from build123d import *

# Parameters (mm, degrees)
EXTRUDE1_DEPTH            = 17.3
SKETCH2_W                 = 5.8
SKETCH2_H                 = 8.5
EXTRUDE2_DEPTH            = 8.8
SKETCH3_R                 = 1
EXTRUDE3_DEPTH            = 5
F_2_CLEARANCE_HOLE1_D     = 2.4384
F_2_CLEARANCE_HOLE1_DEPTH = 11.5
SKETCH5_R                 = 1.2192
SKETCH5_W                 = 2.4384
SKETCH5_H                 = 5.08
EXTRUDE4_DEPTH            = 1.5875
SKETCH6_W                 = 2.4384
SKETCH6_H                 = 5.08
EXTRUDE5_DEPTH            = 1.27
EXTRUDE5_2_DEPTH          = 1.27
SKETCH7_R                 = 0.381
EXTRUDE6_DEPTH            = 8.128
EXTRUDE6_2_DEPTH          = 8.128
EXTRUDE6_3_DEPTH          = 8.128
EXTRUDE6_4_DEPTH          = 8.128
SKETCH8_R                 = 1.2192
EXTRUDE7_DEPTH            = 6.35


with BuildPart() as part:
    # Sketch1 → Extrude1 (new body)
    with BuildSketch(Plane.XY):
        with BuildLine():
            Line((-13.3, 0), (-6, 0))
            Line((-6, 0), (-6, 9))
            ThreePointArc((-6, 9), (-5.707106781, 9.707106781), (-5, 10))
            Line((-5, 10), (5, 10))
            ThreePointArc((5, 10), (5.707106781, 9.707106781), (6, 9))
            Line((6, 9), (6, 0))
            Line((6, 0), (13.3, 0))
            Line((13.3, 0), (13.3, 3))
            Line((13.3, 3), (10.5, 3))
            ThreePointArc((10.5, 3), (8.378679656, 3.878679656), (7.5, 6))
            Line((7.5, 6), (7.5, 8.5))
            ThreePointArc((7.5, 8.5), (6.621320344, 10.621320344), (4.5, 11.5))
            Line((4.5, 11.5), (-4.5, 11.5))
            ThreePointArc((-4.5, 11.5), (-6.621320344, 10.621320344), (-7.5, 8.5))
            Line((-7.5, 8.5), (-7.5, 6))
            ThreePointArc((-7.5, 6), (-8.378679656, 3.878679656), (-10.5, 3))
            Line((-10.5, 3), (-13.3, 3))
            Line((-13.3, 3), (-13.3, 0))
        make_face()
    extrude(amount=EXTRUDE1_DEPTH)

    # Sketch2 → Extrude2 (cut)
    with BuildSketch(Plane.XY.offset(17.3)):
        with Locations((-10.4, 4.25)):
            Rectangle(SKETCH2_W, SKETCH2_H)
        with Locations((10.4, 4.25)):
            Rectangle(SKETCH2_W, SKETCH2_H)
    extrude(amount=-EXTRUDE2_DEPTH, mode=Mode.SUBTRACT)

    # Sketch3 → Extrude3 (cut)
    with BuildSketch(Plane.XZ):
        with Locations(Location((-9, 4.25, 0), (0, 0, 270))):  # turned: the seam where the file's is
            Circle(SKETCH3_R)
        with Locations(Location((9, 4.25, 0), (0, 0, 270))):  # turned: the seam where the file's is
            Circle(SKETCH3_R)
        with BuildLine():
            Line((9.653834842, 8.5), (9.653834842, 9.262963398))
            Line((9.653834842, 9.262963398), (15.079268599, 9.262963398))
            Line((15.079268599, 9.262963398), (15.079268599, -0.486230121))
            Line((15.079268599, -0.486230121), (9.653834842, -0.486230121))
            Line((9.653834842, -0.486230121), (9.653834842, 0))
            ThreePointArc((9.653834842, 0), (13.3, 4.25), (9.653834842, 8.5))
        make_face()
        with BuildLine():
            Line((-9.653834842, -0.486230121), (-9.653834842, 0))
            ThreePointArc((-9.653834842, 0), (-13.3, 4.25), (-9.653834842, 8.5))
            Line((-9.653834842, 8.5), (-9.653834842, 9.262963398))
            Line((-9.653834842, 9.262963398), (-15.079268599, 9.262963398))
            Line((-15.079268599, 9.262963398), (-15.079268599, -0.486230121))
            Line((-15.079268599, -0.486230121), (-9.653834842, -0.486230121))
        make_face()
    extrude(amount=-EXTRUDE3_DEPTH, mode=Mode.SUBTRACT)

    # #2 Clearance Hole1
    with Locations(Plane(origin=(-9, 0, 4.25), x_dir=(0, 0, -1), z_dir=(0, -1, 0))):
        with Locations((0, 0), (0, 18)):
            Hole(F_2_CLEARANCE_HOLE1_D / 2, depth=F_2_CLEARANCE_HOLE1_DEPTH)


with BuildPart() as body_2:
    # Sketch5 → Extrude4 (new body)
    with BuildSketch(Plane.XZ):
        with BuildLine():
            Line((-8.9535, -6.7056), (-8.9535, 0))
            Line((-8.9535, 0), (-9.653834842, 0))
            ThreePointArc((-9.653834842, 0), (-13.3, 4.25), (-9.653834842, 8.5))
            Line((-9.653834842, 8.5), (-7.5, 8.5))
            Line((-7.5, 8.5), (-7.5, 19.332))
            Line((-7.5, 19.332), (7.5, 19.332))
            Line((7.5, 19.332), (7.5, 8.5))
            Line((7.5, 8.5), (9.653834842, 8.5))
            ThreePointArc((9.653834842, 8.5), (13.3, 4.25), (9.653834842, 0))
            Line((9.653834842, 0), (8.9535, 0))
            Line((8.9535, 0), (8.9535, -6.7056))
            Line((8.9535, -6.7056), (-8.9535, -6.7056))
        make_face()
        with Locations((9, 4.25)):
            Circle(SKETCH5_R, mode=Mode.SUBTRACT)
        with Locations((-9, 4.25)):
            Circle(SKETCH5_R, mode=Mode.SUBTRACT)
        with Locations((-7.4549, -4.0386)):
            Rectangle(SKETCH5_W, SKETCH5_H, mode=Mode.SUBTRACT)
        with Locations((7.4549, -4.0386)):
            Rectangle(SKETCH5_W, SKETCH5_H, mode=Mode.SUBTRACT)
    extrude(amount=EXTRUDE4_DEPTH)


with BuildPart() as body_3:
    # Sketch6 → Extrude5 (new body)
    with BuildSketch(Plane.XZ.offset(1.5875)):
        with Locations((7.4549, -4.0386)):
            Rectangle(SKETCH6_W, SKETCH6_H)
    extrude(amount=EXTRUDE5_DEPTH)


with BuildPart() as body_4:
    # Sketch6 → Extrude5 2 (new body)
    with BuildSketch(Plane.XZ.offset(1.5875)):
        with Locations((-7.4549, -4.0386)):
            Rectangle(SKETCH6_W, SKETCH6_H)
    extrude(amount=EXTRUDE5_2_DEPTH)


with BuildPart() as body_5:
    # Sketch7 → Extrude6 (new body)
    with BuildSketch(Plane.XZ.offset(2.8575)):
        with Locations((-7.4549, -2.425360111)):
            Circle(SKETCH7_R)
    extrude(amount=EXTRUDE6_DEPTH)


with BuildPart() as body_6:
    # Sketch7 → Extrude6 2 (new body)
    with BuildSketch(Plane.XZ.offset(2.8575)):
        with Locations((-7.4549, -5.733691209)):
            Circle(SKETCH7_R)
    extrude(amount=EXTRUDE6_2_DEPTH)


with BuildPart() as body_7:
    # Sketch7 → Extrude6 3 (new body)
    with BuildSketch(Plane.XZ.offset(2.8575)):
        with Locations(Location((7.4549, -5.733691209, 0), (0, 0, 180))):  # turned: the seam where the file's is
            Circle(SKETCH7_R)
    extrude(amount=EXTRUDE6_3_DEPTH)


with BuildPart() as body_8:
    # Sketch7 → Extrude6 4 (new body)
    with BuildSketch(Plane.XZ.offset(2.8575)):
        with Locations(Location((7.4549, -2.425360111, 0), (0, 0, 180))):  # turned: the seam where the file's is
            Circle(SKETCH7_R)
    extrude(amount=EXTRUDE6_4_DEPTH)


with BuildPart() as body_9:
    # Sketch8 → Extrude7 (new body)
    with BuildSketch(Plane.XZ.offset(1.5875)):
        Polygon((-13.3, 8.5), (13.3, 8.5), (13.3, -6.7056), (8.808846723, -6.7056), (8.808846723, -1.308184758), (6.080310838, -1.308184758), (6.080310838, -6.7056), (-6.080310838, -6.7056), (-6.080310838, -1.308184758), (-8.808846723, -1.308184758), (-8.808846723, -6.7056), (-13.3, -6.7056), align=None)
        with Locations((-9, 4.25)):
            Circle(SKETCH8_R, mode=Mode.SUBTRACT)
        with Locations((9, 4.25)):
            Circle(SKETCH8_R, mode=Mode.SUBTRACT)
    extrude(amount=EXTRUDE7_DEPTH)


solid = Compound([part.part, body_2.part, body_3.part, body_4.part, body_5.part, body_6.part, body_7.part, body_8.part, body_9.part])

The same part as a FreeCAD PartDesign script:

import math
import FreeCAD as App
import Part
import Sketcher

V = App.Vector


def add_polygon(sketch, points):
    """Adds a closed chain of lines whose ends are joined by coincident constraints."""
    first, n = sketch.GeometryCount, len(points)
    for a, b in zip(points, points[1:] + points[:1]):
        sketch.addGeometry(Part.LineSegment(App.Vector(*a, 0), App.Vector(*b, 0)), False)
    for i in range(n):
        sketch.addConstraint(Sketcher.Constraint("Coincident", first + i, 2, first + (i + 1) % n, 1))

doc = App.newDocument("Part")
body = doc.addObject("PartDesign::Body", "Body")

sketch1 = doc.addObject("Sketcher::SketchObject", "Sketch")
body.addObject(sketch1)
sketch1.AttachmentSupport = (doc.XY_Plane, [""])
sketch1.MapMode = "FlatFace"
sketch1.addGeometry(Part.LineSegment(V(-13.3, 0, 0), V(-6, 0, 0)), False)
sketch1.addGeometry(Part.LineSegment(V(-6, 0, 0), V(-6, 9, 0)), False)
sketch1.addGeometry(Part.ArcOfCircle(Part.Circle(V(-5, 9, 0), V(0, 0, 1), 1), math.radians(90), math.radians(180)), False)
sketch1.addGeometry(Part.LineSegment(V(-5, 10, 0), V(5, 10, 0)), False)
sketch1.addGeometry(Part.ArcOfCircle(Part.Circle(V(5, 9, 0), V(0, 0, 1), 1), math.radians(0), math.radians(90)), False)
sketch1.addGeometry(Part.LineSegment(V(6, 9, 0), V(6, 0, 0)), False)
sketch1.addGeometry(Part.LineSegment(V(6, 0, 0), V(13.3, 0, 0)), False)
sketch1.addGeometry(Part.LineSegment(V(13.3, 0, 0), V(13.3, 3, 0)), False)
sketch1.addGeometry(Part.LineSegment(V(13.3, 3, 0), V(10.5, 3, 0)), False)
sketch1.addGeometry(Part.ArcOfCircle(Part.Circle(V(10.5, 6, 0), V(0, 0, 1), 3), math.radians(180), math.radians(270)), False)
sketch1.addGeometry(Part.LineSegment(V(7.5, 6, 0), V(7.5, 8.5, 0)), False)
sketch1.addGeometry(Part.ArcOfCircle(Part.Circle(V(4.5, 8.5, 0), V(0, 0, 1), 3), math.radians(0), math.radians(90)), False)
sketch1.addGeometry(Part.LineSegment(V(4.5, 11.5, 0), V(-4.5, 11.5, 0)), False)
sketch1.addGeometry(Part.ArcOfCircle(Part.Circle(V(-4.5, 8.5, 0), V(0, 0, 1), 3), math.radians(90), math.radians(180)), False)
sketch1.addGeometry(Part.LineSegment(V(-7.5, 8.5, 0), V(-7.5, 6, 0)), False)
sketch1.addGeometry(Part.ArcOfCircle(Part.Circle(V(-10.5, 6, 0), V(0, 0, 1), 3), math.radians(-90), math.radians(0)), False)
sketch1.addGeometry(Part.LineSegment(V(-10.5, 3, 0), V(-13.3, 3, 0)), False)
sketch1.addGeometry(Part.LineSegment(V(-13.3, 3, 0), V(-13.3, 0, 0)), False)
sketch1.addConstraint(Sketcher.Constraint("Coincident", 0, 2, 1, 1))
sketch1.addConstraint(Sketcher.Constraint("Tangent", 1, 2, 2, 2))
sketch1.addConstraint(Sketcher.Constraint("Tangent", 2, 1, 3, 1))
sketch1.addConstraint(Sketcher.Constraint("Tangent", 3, 2, 4, 2))
sketch1.addConstraint(Sketcher.Constraint("Tangent", 4, 1, 5, 1))
sketch1.addConstraint(Sketcher.Constraint("Coincident", 5, 2, 6, 1))
sketch1.addConstraint(Sketcher.Constraint("Coincident", 6, 2, 7, 1))
sketch1.addConstraint(Sketcher.Constraint("Coincident", 7, 2, 8, 1))
sketch1.addConstraint(Sketcher.Constraint("Tangent", 8, 2, 9, 2))
sketch1.addConstraint(Sketcher.Constraint("Tangent", 9, 1, 10, 1))
sketch1.addConstraint(Sketcher.Constraint("Tangent", 10, 2, 11, 1))
sketch1.addConstraint(Sketcher.Constraint("Tangent", 11, 2, 12, 1))
sketch1.addConstraint(Sketcher.Constraint("Tangent", 12, 2, 13, 1))
sketch1.addConstraint(Sketcher.Constraint("Tangent", 13, 2, 14, 1))
sketch1.addConstraint(Sketcher.Constraint("Tangent", 14, 2, 15, 2))
sketch1.addConstraint(Sketcher.Constraint("Tangent", 15, 1, 16, 1))
sketch1.addConstraint(Sketcher.Constraint("Coincident", 16, 2, 17, 1))
sketch1.addConstraint(Sketcher.Constraint("Coincident", 17, 2, 0, 1))
sketch1.addConstraint(Sketcher.Constraint("Horizontal", 0))
sketch1.addConstraint(Sketcher.Constraint("Vertical", 1))
sketch1.addConstraint(Sketcher.Constraint("Horizontal", 3))
sketch1.addConstraint(Sketcher.Constraint("Vertical", 5))
sketch1.addConstraint(Sketcher.Constraint("Horizontal", 6))
sketch1.addConstraint(Sketcher.Constraint("Vertical", 7))
sketch1.addConstraint(Sketcher.Constraint("Horizontal", 8))
sketch1.addConstraint(Sketcher.Constraint("Vertical", 10))
sketch1.addConstraint(Sketcher.Constraint("Horizontal", 12))
sketch1.addConstraint(Sketcher.Constraint("Vertical", 14))
sketch1.addConstraint(Sketcher.Constraint("Horizontal", 16))
sketch1.addConstraint(Sketcher.Constraint("Vertical", 17))
sketch1.addConstraint(Sketcher.Constraint("Equal", 2, 4))
sketch1.addConstraint(Sketcher.Constraint("Equal", 9, 11))
sketch1.addConstraint(Sketcher.Constraint("Equal", 11, 13))
sketch1.addConstraint(Sketcher.Constraint("Equal", 13, 15))
sketch1.addConstraint(Sketcher.Constraint("Symmetric", 0, 2, 5, 2, -1, 1))
sketch1.addConstraint(Sketcher.Constraint("Symmetric", 9, 3, 15, 3, -2))
sketch1.addConstraint(Sketcher.Constraint("Symmetric", 6, 2, 17, 2, -2))
sketch1.addConstraint(Sketcher.Constraint("Equal", 12, 1))
sketch1.addConstraint(Sketcher.Constraint("Radius", 2, 1.0))
sketch1.addConstraint(Sketcher.Constraint("Radius", 9, 3.0))
sketch1.addConstraint(Sketcher.Constraint("DistanceX", 3, 1, 3, 2, 10.0))
sketch1.addConstraint(Sketcher.Constraint("DistanceX", 12, 2, 12, 1, 9.0))
sketch1.addConstraint(Sketcher.Constraint("DistanceY", 7, 1, 7, 2, 3.0))
sketch1.addConstraint(Sketcher.Constraint("DistanceX", 0, 1, 0, 2, 7.3))
sketch1.addConstraint(Sketcher.Constraint("DistanceY", 10, 1, 10, 2, 2.5))
pad1 = doc.addObject("PartDesign::Pad", "Pad")
body.addObject(pad1)
pad1.Profile = sketch1
pad1.Length = 17.3

sketch2 = doc.addObject("Sketcher::SketchObject", "Sketch001")
body.addObject(sketch2)
sketch2.AttachmentSupport = (doc.XY_Plane, [""])
sketch2.MapMode = "FlatFace"
sketch2.AttachmentOffset = App.Placement(V(0, 0, 17.3), App.Rotation())
add_polygon(sketch2, [(-13.3, 8.5), (-13.3, 0), (-7.5, 0), (-7.5, 8.5)])
add_polygon(sketch2, [(7.5, 8.5), (7.5, 0), (13.3, 0), (13.3, 8.5)])
sketch2.addConstraint(Sketcher.Constraint("Vertical", 0))
sketch2.addConstraint(Sketcher.Constraint("Horizontal", 1))
sketch2.addConstraint(Sketcher.Constraint("Vertical", 2))
sketch2.addConstraint(Sketcher.Constraint("Horizontal", 3))
sketch2.addConstraint(Sketcher.Constraint("Vertical", 4))
sketch2.addConstraint(Sketcher.Constraint("Horizontal", 5))
sketch2.addConstraint(Sketcher.Constraint("Vertical", 6))
sketch2.addConstraint(Sketcher.Constraint("Horizontal", 7))
sketch2.addConstraint(Sketcher.Constraint("Symmetric", 1, 2, 4, 2, -1, 1))
sketch2.addConstraint(Sketcher.Constraint("Symmetric", 0, 2, 5, 2, -2))
sketch2.addConstraint(Sketcher.Constraint("Horizontal", 3, 2, 6, 2))
sketch2.addConstraint(Sketcher.Constraint("DistanceX", 1, 1, 1, 2, 5.8))
sketch2.addConstraint(Sketcher.Constraint("DistanceY", 0, 2, 0, 1, 8.5))
sketch2.addConstraint(Sketcher.Constraint("DistanceX", 1, 2, 4, 2, 15.0))
pocket1 = doc.addObject("PartDesign::Pocket", "Pocket")
body.addObject(pocket1)
pocket1.Profile = sketch2
pocket1.Length = 8.8

sketch3 = doc.addObject("Sketcher::SketchObject", "Sketch002")
body.addObject(sketch3)
sketch3.AttachmentSupport = (doc.XZ_Plane, [""])
sketch3.MapMode = "FlatFace"
sketch3.addGeometry(Part.Circle(V(-9, 4.25, 0), V(0, 0, 1), 1), False)
sketch3.addGeometry(Part.Circle(V(9, 4.25, 0), V(0, 0, 1), 1), False)
sketch3.addGeometry(Part.LineSegment(V(9.653835, 9.262963, 0), V(9.653835, 8.5, 0)), False)
sketch3.addGeometry(Part.ArcOfCircle(Part.Circle(V(9, 4.25, 0), V(0, 0, 1), 4.3), math.radians(-81.253987), math.radians(81.253987)), False)
sketch3.addGeometry(Part.LineSegment(V(9.653835, 0, 0), V(9.653835, -0.48623, 0)), False)
sketch3.addGeometry(Part.LineSegment(V(9.653835, -0.48623, 0), V(15.079269, -0.48623, 0)), False)
sketch3.addGeometry(Part.LineSegment(V(15.079269, -0.48623, 0), V(15.079269, 9.262963, 0)), False)
sketch3.addGeometry(Part.LineSegment(V(15.079269, 9.262963, 0), V(9.653835, 9.262963, 0)), False)
sketch3.addGeometry(Part.LineSegment(V(-9.653835, -0.48623, 0), V(-9.653835, 0, 0)), False)
sketch3.addGeometry(Part.ArcOfCircle(Part.Circle(V(-9, 4.25, 0), V(0, 0, 1), 4.3), math.radians(98.746013), math.radians(261.253987)), False)
sketch3.addGeometry(Part.LineSegment(V(-9.653835, 8.5, 0), V(-9.653835, 9.262963, 0)), False)
sketch3.addGeometry(Part.LineSegment(V(-9.653835, 9.262963, 0), V(-15.079269, 9.262963, 0)), False)
sketch3.addGeometry(Part.LineSegment(V(-15.079269, 9.262963, 0), V(-15.079269, -0.48623, 0)), False)
sketch3.addGeometry(Part.LineSegment(V(-15.079269, -0.48623, 0), V(-9.653835, -0.48623, 0)), False)
sketch3.addConstraint(Sketcher.Constraint("Coincident", 2, 2, 3, 2))
sketch3.addConstraint(Sketcher.Constraint("Coincident", 3, 1, 4, 1))
sketch3.addConstraint(Sketcher.Constraint("Coincident", 4, 2, 5, 1))
sketch3.addConstraint(Sketcher.Constraint("Coincident", 5, 2, 6, 1))
sketch3.addConstraint(Sketcher.Constraint("Coincident", 6, 2, 7, 1))
sketch3.addConstraint(Sketcher.Constraint("Coincident", 7, 2, 2, 1))
sketch3.addConstraint(Sketcher.Constraint("Coincident", 8, 2, 9, 2))
sketch3.addConstraint(Sketcher.Constraint("Coincident", 9, 1, 10, 1))
sketch3.addConstraint(Sketcher.Constraint("Coincident", 10, 2, 11, 1))
sketch3.addConstraint(Sketcher.Constraint("Coincident", 11, 2, 12, 1))
sketch3.addConstraint(Sketcher.Constraint("Coincident", 12, 2, 13, 1))
sketch3.addConstraint(Sketcher.Constraint("Coincident", 13, 2, 8, 1))
sketch3.addConstraint(Sketcher.Constraint("Vertical", 2))
sketch3.addConstraint(Sketcher.Constraint("Vertical", 4))
sketch3.addConstraint(Sketcher.Constraint("Horizontal", 5))
sketch3.addConstraint(Sketcher.Constraint("Vertical", 6))
sketch3.addConstraint(Sketcher.Constraint("Horizontal", 7))
sketch3.addConstraint(Sketcher.Constraint("Vertical", 8))
sketch3.addConstraint(Sketcher.Constraint("Vertical", 10))
sketch3.addConstraint(Sketcher.Constraint("Horizontal", 11))
sketch3.addConstraint(Sketcher.Constraint("Vertical", 12))
sketch3.addConstraint(Sketcher.Constraint("Horizontal", 13))
sketch3.addConstraint(Sketcher.Constraint("Coincident", 3, 3, 1, 3))
sketch3.addConstraint(Sketcher.Constraint("Coincident", 9, 3, 0, 3))
sketch3.addConstraint(Sketcher.Constraint("Equal", 0, 1))
sketch3.addConstraint(Sketcher.Constraint("Equal", 3, 9))
sketch3.addConstraint(Sketcher.Constraint("Symmetric", 3, 1, 8, 2, -1, 1))
sketch3.addConstraint(Sketcher.Constraint("Symmetric", 0, 3, 1, 3, -2))
sketch3.addConstraint(Sketcher.Constraint("Symmetric", 7, 2, 10, 2, -2))
sketch3.addConstraint(Sketcher.Constraint("Symmetric", 5, 2, 12, 2, -2))
sketch3.addConstraint(Sketcher.Constraint("Vertical", 2, 2, 3, 1))
sketch3.addConstraint(Sketcher.Constraint("Diameter", 0, 2.0))
sketch3.addConstraint(Sketcher.Constraint("Radius", 3, 4.3))
sketch3.addConstraint(Sketcher.Constraint("DistanceX", 0, 3, -1, 1, 9.0))
sketch3.addConstraint(Sketcher.Constraint("DistanceY", -1, 1, 2, 2, 8.5))
sketch3.addConstraint(Sketcher.Constraint("DistanceY", 4, 2, 4, 1, 0.48623))
sketch3.addConstraint(Sketcher.Constraint("DistanceX", 5, 1, 5, 2, 5.425434))
sketch3.addConstraint(Sketcher.Constraint("DistanceY", 2, 2, 2, 1, 0.762963))
pocket2 = doc.addObject("PartDesign::Pocket", "Pocket001")
body.addObject(pocket2)
pocket2.Profile = sketch3
pocket2.Length = 5

sketch4 = doc.addObject("Sketcher::SketchObject", "Sketch003")
body.addObject(sketch4)
sketch4.AttachmentSupport = (doc.XZ_Plane, [""])
sketch4.MapMode = "FlatFace"
sketch4.addGeometry(Part.Circle(V(-9, 4.25, 0), V(0, 0, 1), 1.2192), False)
sketch4.addGeometry(Part.Circle(V(9, 4.25, 0), V(0, 0, 1), 1.2192), False)
sketch4.addConstraint(Sketcher.Constraint("Equal", 0, 1))
sketch4.addConstraint(Sketcher.Constraint("Symmetric", 0, 3, 1, 3, -2))
sketch4.addConstraint(Sketcher.Constraint("DistanceX", 0, 3, -1, 1, 9.0))
sketch4.addConstraint(Sketcher.Constraint("Diameter", 0, 2.4384))
sketch4.addConstraint(Sketcher.Constraint("DistanceY", -1, 1, 0, 3, 4.25))
doc.recompute()
hole = doc.addObject("PartDesign::Hole", "Hole")
body.addObject(hole)
hole.Profile = sketch4
hole.ThreadType = "None"
hole.Diameter = 2.4384
hole.DepthType = "Dimension"
hole.Depth = 11.5
hole.DrillPoint = "Flat"
body2 = doc.addObject("PartDesign::Body", "Body001")

sketch5 = doc.addObject("Sketcher::SketchObject", "Sketch004")
body2.addObject(sketch5)
sketch5.AttachmentSupport = (doc.getObject("XZ_Plane001"), [""])
sketch5.MapMode = "FlatFace"
sketch5.addGeometry(Part.LineSegment(V(-8.9535, 0, 0), V(-8.9535, -6.7056, 0)), False)
sketch5.addGeometry(Part.LineSegment(V(-8.9535, -6.7056, 0), V(8.9535, -6.7056, 0)), False)
sketch5.addGeometry(Part.LineSegment(V(8.9535, -6.7056, 0), V(8.9535, 0, 0)), False)
sketch5.addGeometry(Part.LineSegment(V(8.9535, 0, 0), V(9.653835, 0, 0)), False)
sketch5.addGeometry(Part.ArcOfCircle(Part.Circle(V(9, 4.25, 0), V(0, 0, 1), 4.3), math.radians(-81.253987), math.radians(81.253987)), False)
sketch5.addGeometry(Part.LineSegment(V(9.653835, 8.5, 0), V(7.5, 8.5, 0)), False)
sketch5.addGeometry(Part.LineSegment(V(7.5, 8.5, 0), V(7.5, 19.332, 0)), False)
sketch5.addGeometry(Part.LineSegment(V(7.5, 19.332, 0), V(-7.5, 19.332, 0)), False)
sketch5.addGeometry(Part.LineSegment(V(-7.5, 19.332, 0), V(-7.5, 8.5, 0)), False)
sketch5.addGeometry(Part.LineSegment(V(-7.5, 8.5, 0), V(-9.653835, 8.5, 0)), False)
sketch5.addGeometry(Part.ArcOfCircle(Part.Circle(V(-9, 4.25, 0), V(0, 0, 1), 4.3), math.radians(98.746013), math.radians(261.253987)), False)
sketch5.addGeometry(Part.LineSegment(V(-9.653835, 0, 0), V(-8.9535, 0, 0)), False)
add_polygon(sketch5, [(6.2357, -6.5786), (6.2357, -1.4986), (8.6741, -1.4986), (8.6741, -6.5786)])
add_polygon(sketch5, [(-8.6741, -6.5786), (-8.6741, -1.4986), (-6.2357, -1.4986), (-6.2357, -6.5786)])
sketch5.addGeometry(Part.Circle(V(9, 4.25, 0), V(0, 0, 1), 1.2192), False)
sketch5.addGeometry(Part.Circle(V(-9, 4.25, 0), V(0, 0, 1), 1.2192), False)
sketch5.addConstraint(Sketcher.Constraint("Coincident", 0, 2, 1, 1))
sketch5.addConstraint(Sketcher.Constraint("Coincident", 1, 2, 2, 1))
sketch5.addConstraint(Sketcher.Constraint("Coincident", 2, 2, 3, 1))
sketch5.addConstraint(Sketcher.Constraint("Coincident", 3, 2, 4, 1))
sketch5.addConstraint(Sketcher.Constraint("Coincident", 4, 2, 5, 1))
sketch5.addConstraint(Sketcher.Constraint("Coincident", 5, 2, 6, 1))
sketch5.addConstraint(Sketcher.Constraint("Coincident", 6, 2, 7, 1))
sketch5.addConstraint(Sketcher.Constraint("Coincident", 7, 2, 8, 1))
sketch5.addConstraint(Sketcher.Constraint("Coincident", 8, 2, 9, 1))
sketch5.addConstraint(Sketcher.Constraint("Coincident", 9, 2, 10, 1))
sketch5.addConstraint(Sketcher.Constraint("Coincident", 10, 2, 11, 1))
sketch5.addConstraint(Sketcher.Constraint("Coincident", 11, 2, 0, 1))
sketch5.addConstraint(Sketcher.Constraint("Vertical", 0))
sketch5.addConstraint(Sketcher.Constraint("Horizontal", 1))
sketch5.addConstraint(Sketcher.Constraint("Vertical", 2))
sketch5.addConstraint(Sketcher.Constraint("Horizontal", 3))
sketch5.addConstraint(Sketcher.Constraint("Horizontal", 5))
sketch5.addConstraint(Sketcher.Constraint("Vertical", 6))
sketch5.addConstraint(Sketcher.Constraint("Horizontal", 7))
sketch5.addConstraint(Sketcher.Constraint("Vertical", 8))
sketch5.addConstraint(Sketcher.Constraint("Horizontal", 9))
sketch5.addConstraint(Sketcher.Constraint("Horizontal", 11))
sketch5.addConstraint(Sketcher.Constraint("Vertical", 12))
sketch5.addConstraint(Sketcher.Constraint("Horizontal", 13))
sketch5.addConstraint(Sketcher.Constraint("Vertical", 14))
sketch5.addConstraint(Sketcher.Constraint("Horizontal", 15))
sketch5.addConstraint(Sketcher.Constraint("Vertical", 16))
sketch5.addConstraint(Sketcher.Constraint("Horizontal", 17))
sketch5.addConstraint(Sketcher.Constraint("Vertical", 18))
sketch5.addConstraint(Sketcher.Constraint("Horizontal", 19))
sketch5.addConstraint(Sketcher.Constraint("Coincident", 20, 3, 4, 3))
sketch5.addConstraint(Sketcher.Constraint("Coincident", 21, 3, 10, 3))
sketch5.addConstraint(Sketcher.Constraint("Equal", 4, 10))
sketch5.addConstraint(Sketcher.Constraint("Equal", 20, 21))
sketch5.addConstraint(Sketcher.Constraint("Symmetric", 3, 2, 10, 2, -1, 1))
sketch5.addConstraint(Sketcher.Constraint("Symmetric", 4, 3, 10, 3, -2))
sketch5.addConstraint(Sketcher.Constraint("Symmetric", 5, 2, 8, 2, -2))
sketch5.addConstraint(Sketcher.Constraint("Symmetric", 13, 2, 16, 2, -2))
sketch5.addConstraint(Sketcher.Constraint("Symmetric", 15, 2, 18, 2, -2))
sketch5.addConstraint(Sketcher.Constraint("Vertical", 3, 2, 4, 2))
sketch5.addConstraint(Sketcher.Constraint("Equal", 3, 11))
sketch5.addConstraint(Sketcher.Constraint("Radius", 4, 4.3))
sketch5.addConstraint(Sketcher.Constraint("DistanceX", 7, 2, 7, 1, 15.0))
sketch5.addConstraint(Sketcher.Constraint("DistanceX", -1, 1, 4, 3, 9.0))
sketch5.addConstraint(Sketcher.Constraint("Diameter", 20, 2.4384))
sketch5.addConstraint(Sketcher.Constraint("DistanceY", 12, 1, 12, 2, 5.08))
sketch5.addConstraint(Sketcher.Constraint("DistanceY", -1, 1, 4, 2, 8.5))
sketch5.addConstraint(Sketcher.Constraint("DistanceX", 1, 1, 1, 2, 17.907))
sketch5.addConstraint(Sketcher.Constraint("DistanceY", 6, 1, 6, 2, 10.832))
sketch5.addConstraint(Sketcher.Constraint("DistanceX", 13, 1, 13, 2, 2.4384))
sketch5.addConstraint(Sketcher.Constraint("DistanceY", 0, 2, 0, 1, 6.7056))
sketch5.addConstraint(Sketcher.Constraint("DistanceY", 1, 2, 12, 2, 5.207))
sketch5.addConstraint(Sketcher.Constraint("DistanceX", -1, 1, 12, 2, 6.2357))
pad2 = doc.addObject("PartDesign::Pad", "Pad001")
body2.addObject(pad2)
pad2.Profile = sketch5
pad2.Length = 1.5875
body3 = doc.addObject("PartDesign::Body", "Body002")

sketch6 = doc.addObject("Sketcher::SketchObject", "Sketch005")
body3.addObject(sketch6)
sketch6.AttachmentSupport = (doc.getObject("XZ_Plane002"), [""])
sketch6.MapMode = "FlatFace"
sketch6.AttachmentOffset = App.Placement(V(0, 0, 1.5875), App.Rotation())
add_polygon(sketch6, [(6.2357, -1.4986), (6.2357, -6.5786), (8.6741, -6.5786), (8.6741, -1.4986)])
sketch6.addConstraint(Sketcher.Constraint("Vertical", 0))
sketch6.addConstraint(Sketcher.Constraint("Horizontal", 1))
sketch6.addConstraint(Sketcher.Constraint("Vertical", 2))
sketch6.addConstraint(Sketcher.Constraint("Horizontal", 3))
sketch6.addConstraint(Sketcher.Constraint("DistanceY", 0, 2, 0, 1, 5.08))
sketch6.addConstraint(Sketcher.Constraint("DistanceX", 1, 1, 1, 2, 2.4384))
sketch6.addConstraint(Sketcher.Constraint("DistanceX", -1, 1, 0, 2, 6.2357))
sketch6.addConstraint(Sketcher.Constraint("DistanceY", 0, 2, -1, 1, 6.5786))
pad3 = doc.addObject("PartDesign::Pad", "Pad002")
body3.addObject(pad3)
pad3.Profile = sketch6
pad3.Length = 1.27
body4 = doc.addObject("PartDesign::Body", "Body003")

sketch7 = doc.addObject("Sketcher::SketchObject", "Sketch006")
body4.addObject(sketch7)
sketch7.AttachmentSupport = (doc.getObject("XZ_Plane003"), [""])
sketch7.MapMode = "FlatFace"
sketch7.AttachmentOffset = App.Placement(V(0, 0, 1.5875), App.Rotation())
add_polygon(sketch7, [(-8.6741, -1.4986), (-8.6741, -6.5786), (-6.2357, -6.5786), (-6.2357, -1.4986)])
sketch7.addConstraint(Sketcher.Constraint("Vertical", 0))
sketch7.addConstraint(Sketcher.Constraint("Horizontal", 1))
sketch7.addConstraint(Sketcher.Constraint("Vertical", 2))
sketch7.addConstraint(Sketcher.Constraint("Horizontal", 3))
sketch7.addConstraint(Sketcher.Constraint("DistanceY", 0, 2, 0, 1, 5.08))
sketch7.addConstraint(Sketcher.Constraint("DistanceX", 1, 1, 1, 2, 2.4384))
sketch7.addConstraint(Sketcher.Constraint("DistanceX", 0, 2, -1, 1, 8.6741))
sketch7.addConstraint(Sketcher.Constraint("DistanceY", 0, 2, -1, 1, 6.5786))
pad4 = doc.addObject("PartDesign::Pad", "Pad003")
body4.addObject(pad4)
pad4.Profile = sketch7
pad4.Length = 1.27
body5 = doc.addObject("PartDesign::Body", "Body004")

sketch8 = doc.addObject("Sketcher::SketchObject", "Sketch007")
body5.addObject(sketch8)
sketch8.AttachmentSupport = (doc.getObject("XZ_Plane004"), [""])
sketch8.MapMode = "FlatFace"
sketch8.AttachmentOffset = App.Placement(V(0, 0, 2.8575), App.Rotation())
sketch8.addGeometry(Part.Circle(V(-7.4549, -2.42536, 0), V(0, 0, 1), 0.381), False)
sketch8.addConstraint(Sketcher.Constraint("Diameter", 0, 0.762))
sketch8.addConstraint(Sketcher.Constraint("DistanceX", 0, 3, -1, 1, 7.4549))
sketch8.addConstraint(Sketcher.Constraint("DistanceY", 0, 3, -1, 1, 2.42536))
pad5 = doc.addObject("PartDesign::Pad", "Pad004")
body5.addObject(pad5)
pad5.Profile = sketch8
pad5.Length = 8.128
body6 = doc.addObject("PartDesign::Body", "Body005")

sketch9 = doc.addObject("Sketcher::SketchObject", "Sketch008")
body6.addObject(sketch9)
sketch9.AttachmentSupport = (doc.getObject("XZ_Plane005"), [""])
sketch9.MapMode = "FlatFace"
sketch9.AttachmentOffset = App.Placement(V(0, 0, 2.8575), App.Rotation())
sketch9.addGeometry(Part.Circle(V(-7.4549, -5.733691, 0), V(0, 0, 1), 0.381), False)
sketch9.addConstraint(Sketcher.Constraint("Diameter", 0, 0.762))
sketch9.addConstraint(Sketcher.Constraint("DistanceX", 0, 3, -1, 1, 7.4549))
sketch9.addConstraint(Sketcher.Constraint("DistanceY", 0, 3, -1, 1, 5.733691))
pad6 = doc.addObject("PartDesign::Pad", "Pad005")
body6.addObject(pad6)
pad6.Profile = sketch9
pad6.Length = 8.128
body7 = doc.addObject("PartDesign::Body", "Body006")

sketch10 = doc.addObject("Sketcher::SketchObject", "Sketch009")
body7.addObject(sketch10)
sketch10.AttachmentSupport = (doc.getObject("XZ_Plane006"), [""])
sketch10.MapMode = "FlatFace"
sketch10.AttachmentOffset = App.Placement(V(0, 0, 2.8575), App.Rotation())
sketch10.addGeometry(Part.Circle(V(7.4549, -5.733691, 0), V(0, 0, 1), 0.381), False)
sketch10.addConstraint(Sketcher.Constraint("Diameter", 0, 0.762))
sketch10.addConstraint(Sketcher.Constraint("DistanceX", -1, 1, 0, 3, 7.4549))
sketch10.addConstraint(Sketcher.Constraint("DistanceY", 0, 3, -1, 1, 5.733691))
pad7 = doc.addObject("PartDesign::Pad", "Pad006")
body7.addObject(pad7)
pad7.Profile = sketch10
pad7.Length = 8.128
body8 = doc.addObject("PartDesign::Body", "Body007")

sketch11 = doc.addObject("Sketcher::SketchObject", "Sketch010")
body8.addObject(sketch11)
sketch11.AttachmentSupport = (doc.getObject("XZ_Plane007"), [""])
sketch11.MapMode = "FlatFace"
sketch11.AttachmentOffset = App.Placement(V(0, 0, 2.8575), App.Rotation())
sketch11.addGeometry(Part.Circle(V(7.4549, -2.42536, 0), V(0, 0, 1), 0.381), False)
sketch11.addConstraint(Sketcher.Constraint("Diameter", 0, 0.762))
sketch11.addConstraint(Sketcher.Constraint("DistanceX", -1, 1, 0, 3, 7.4549))
sketch11.addConstraint(Sketcher.Constraint("DistanceY", 0, 3, -1, 1, 2.42536))
pad8 = doc.addObject("PartDesign::Pad", "Pad007")
body8.addObject(pad8)
pad8.Profile = sketch11
pad8.Length = 8.128
body9 = doc.addObject("PartDesign::Body", "Body008")

sketch12 = doc.addObject("Sketcher::SketchObject", "Sketch011")
body9.addObject(sketch12)
sketch12.AttachmentSupport = (doc.getObject("XZ_Plane008"), [""])
sketch12.MapMode = "FlatFace"
sketch12.AttachmentOffset = App.Placement(V(0, 0, 1.5875), App.Rotation())
add_polygon(sketch12, [(13.3, 8.5), (-13.3, 8.5), (-13.3, -6.7056), (-8.808847, -6.7056), (-8.808847, -1.308185), (-6.080311, -1.308185), (-6.080311, -6.7056), (6.080311, -6.7056), (6.080311, -1.308185), (8.808847, -1.308185), (8.808847, -6.7056), (13.3, -6.7056)])
sketch12.addGeometry(Part.Circle(V(9, 4.25, 0), V(0, 0, 1), 1.2192), False)
sketch12.addGeometry(Part.Circle(V(-9, 4.25, 0), V(0, 0, 1), 1.2192), False)
sketch12.addConstraint(Sketcher.Constraint("Horizontal", 0))
sketch12.addConstraint(Sketcher.Constraint("Vertical", 1))
sketch12.addConstraint(Sketcher.Constraint("Horizontal", 2))
sketch12.addConstraint(Sketcher.Constraint("Vertical", 3))
sketch12.addConstraint(Sketcher.Constraint("Horizontal", 4))
sketch12.addConstraint(Sketcher.Constraint("Vertical", 5))
sketch12.addConstraint(Sketcher.Constraint("Horizontal", 6))
sketch12.addConstraint(Sketcher.Constraint("Vertical", 7))
sketch12.addConstraint(Sketcher.Constraint("Horizontal", 8))
sketch12.addConstraint(Sketcher.Constraint("Vertical", 9))
sketch12.addConstraint(Sketcher.Constraint("Horizontal", 10))
sketch12.addConstraint(Sketcher.Constraint("Vertical", 11))
sketch12.addConstraint(Sketcher.Constraint("Equal", 12, 13))
sketch12.addConstraint(Sketcher.Constraint("Symmetric", 12, 3, 13, 3, -2))
sketch12.addConstraint(Sketcher.Constraint("Symmetric", 4, 2, 7, 2, -2))
sketch12.addConstraint(Sketcher.Constraint("Symmetric", 2, 2, 9, 2, -2))
sketch12.addConstraint(Sketcher.Constraint("Horizontal", 2, 2, 5, 2))
sketch12.addConstraint(Sketcher.Constraint("Equal", 2, 10))
sketch12.addConstraint(Sketcher.Constraint("DistanceX", 0, 2, 0, 1, 26.6))
sketch12.addConstraint(Sketcher.Constraint("DistanceX", -1, 1, 12, 3, 9.0))
sketch12.addConstraint(Sketcher.Constraint("Diameter", 12, 2.4384))
sketch12.addConstraint(Sketcher.Constraint("DistanceY", -1, 1, 0, 2, 8.5))
sketch12.addConstraint(Sketcher.Constraint("DistanceY", -1, 1, 12, 3, 4.25))
sketch12.addConstraint(Sketcher.Constraint("DistanceY", 1, 2, 1, 1, 15.2056))
sketch12.addConstraint(Sketcher.Constraint("DistanceX", 6, 1, 6, 2, 12.160622))
sketch12.addConstraint(Sketcher.Constraint("DistanceX", 2, 1, 2, 2, 4.491153))
sketch12.addConstraint(Sketcher.Constraint("DistanceY", 3, 1, 3, 2, 5.397415))
pad9 = doc.addObject("PartDesign::Pad", "Pad008")
body9.addObject(pad9)
pad9.Profile = sketch12
pad9.Length = 6.35

doc.recompute()
